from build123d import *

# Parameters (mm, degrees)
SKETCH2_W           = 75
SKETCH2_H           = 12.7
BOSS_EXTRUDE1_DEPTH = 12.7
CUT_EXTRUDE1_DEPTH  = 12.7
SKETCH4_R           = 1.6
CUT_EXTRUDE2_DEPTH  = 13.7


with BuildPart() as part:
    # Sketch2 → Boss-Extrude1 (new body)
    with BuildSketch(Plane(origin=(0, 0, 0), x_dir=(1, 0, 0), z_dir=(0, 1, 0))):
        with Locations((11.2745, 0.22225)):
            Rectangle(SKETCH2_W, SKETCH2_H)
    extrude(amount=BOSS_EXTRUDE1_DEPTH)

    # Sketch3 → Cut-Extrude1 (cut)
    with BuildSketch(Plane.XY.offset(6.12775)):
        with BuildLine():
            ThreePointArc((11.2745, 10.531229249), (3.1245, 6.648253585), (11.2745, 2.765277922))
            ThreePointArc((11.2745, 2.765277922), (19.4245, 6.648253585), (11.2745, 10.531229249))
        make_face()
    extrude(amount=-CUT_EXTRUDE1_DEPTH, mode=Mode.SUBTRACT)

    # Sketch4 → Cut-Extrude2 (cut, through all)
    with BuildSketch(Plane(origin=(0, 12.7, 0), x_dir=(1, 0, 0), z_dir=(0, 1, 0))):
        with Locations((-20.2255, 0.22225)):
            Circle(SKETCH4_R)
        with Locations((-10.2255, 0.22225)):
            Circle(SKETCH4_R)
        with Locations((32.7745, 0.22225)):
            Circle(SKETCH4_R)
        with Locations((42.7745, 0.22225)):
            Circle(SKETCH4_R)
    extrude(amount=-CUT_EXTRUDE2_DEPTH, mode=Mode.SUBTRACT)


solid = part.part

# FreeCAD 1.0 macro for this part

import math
import FreeCAD as App
import Part
import Sketcher
from FreeCAD import Vector
Q = App.Units.Quantity

doc = App.newDocument("Part")
params = doc.addObject("Spreadsheet::Sheet", "Params")
for row, (alias, value) in enumerate([
    ("sketch1_width", "75 mm"),
    ("sketch1_height", "12.7 mm"),
    ("pad1_length", "12.7 mm"),
    ("sketch2_radius", "5 mm"),
    ("pocket1_length", "12.7 mm"),
    ("sketch3_diameter", "3.2 mm"),
], start=1):
    params.set(f"A{row}", alias)
    params.set(f"B{row}", "=" + value)
    params.setAlias(f"B{row}", alias)

body = doc.addObject("PartDesign::Body", "Body")

# Sketch on XZ plane
sketch1 = body.newObject("Sketcher::SketchObject", "Sketch")
sketch1.AttachmentSupport = (doc.getObject("XZ_Plane"), [""])
sketch1.MapMode = "FlatFace"
sketch1.addGeometry([
    Part.LineSegment(Vector(-26, -7, 0), Vector(-26, 6, 0)),
    Part.LineSegment(Vector(-26, 6, 0), Vector(49, 6, 0)),
    Part.LineSegment(Vector(49, 6, 0), Vector(49, -7, 0)),
    Part.LineSegment(Vector(49, -7, 0), Vector(-26, -7, 0)),
], False)
sketch1.addConstraint([
    Sketcher.Constraint("Coincident", 0, 2, 1, 1),
    Sketcher.Constraint("Coincident", 1, 2, 2, 1),
    Sketcher.Constraint("Coincident", 2, 2, 3, 1),
    Sketcher.Constraint("Coincident", 3, 2, 0, 1),
    Sketcher.Constraint("Vertical", 0),
    Sketcher.Constraint("Horizontal", 1),
    Sketcher.Constraint("Vertical", 2),
    Sketcher.Constraint("Horizontal", 3),
    Sketcher.Constraint("DistanceX", 1, 1, 1, 2, Q("75 mm")),
    Sketcher.Constraint("DistanceY", 0, 1, 0, 2, Q("12.7 mm")),
    Sketcher.Constraint("DistanceX", 0, 2, -1, 1, Q("26.2255 mm")),
    Sketcher.Constraint("DistanceY", -1, 1, 0, 2, Q("6.12775 mm")),
])
sketch1.setExpression("Constraints[8]", "Params.sketch1_width")
sketch1.setExpression("Constraints[9]", "Params.sketch1_height")
pad1 = body.newObject("PartDesign::Pad", "Pad")
pad1.Profile = sketch1
pad1.setExpression("Length", "Params.pad1_length")
pad1.Reversed = True

# Sketch on XY plane
sketch2 = body.newObject("Sketcher::SketchObject", "Sketch001")
sketch2.AttachmentSupport = (doc.getObject("XY_Plane"), [""])
sketch2.MapMode = "FlatFace"
sketch2.AttachmentOffset = App.Placement(Vector(0, 0, 6.12775), App.Rotation())
sketch2.addGeometry([
    Part.ArcOfCircle(Part.Circle(Vector(8, 7, 0), Vector(0, 0, 1), 5), math.radians(51), math.radians(309)),
    Part.ArcOfCircle(Part.Circle(Vector(14, 7, 0), Vector(0, 0, 1), 5), math.radians(-129), math.radians(129)),
], False)
sketch2.addConstraint([
    Sketcher.Constraint("Coincident", 0, 1, 1, 2),
    Sketcher.Constraint("Coincident", 1, 1, 0, 2),
    Sketcher.Constraint("Equal", 0, 1),
    Sketcher.Constraint("Horizontal", 0, 3, 1, 3),
    Sketcher.Constraint("Radius", 0, Q("5 mm")),
    Sketcher.Constraint("DistanceX", 0, 3, 1, 3, Q("6.3 mm")),
    Sketcher.Constraint("DistanceX", -1, 1, 0, 3, Q("8.1245 mm")),
    Sketcher.Constraint("DistanceY", -1, 1, 0, 1, Q("10.531229 mm")),
])
sketch2.setExpression("Constraints[4]", "Params.sketch2_radius")
pocket1 = body.newObject("PartDesign::Pocket", "Pocket")
pocket1.Profile = sketch2
pocket1.setExpression("Length", "Params.pocket1_length")

# Sketch on XZ plane
sketch3 = body.newObject("Sketcher::SketchObject", "Sketch002")
sketch3.AttachmentSupport = (doc.getObject("XZ_Plane"), [""])
sketch3.MapMode = "FlatFace"
sketch3.AttachmentOffset = App.Placement(Vector(0, 0, -12.7), App.Rotation())
sketch3.addGeometry([
    Part.Circle(Vector(-20.2, -0.2, 0), Vector(0, 0, 1), 1.6),
    Part.Circle(Vector(-10.2, -0.2, 0), Vector(0, 0, 1), 1.6),
    Part.Circle(Vector(32.8, -0.2, 0), Vector(0, 0, 1), 1.6),
    Part.Circle(Vector(42.8, -0.2, 0), Vector(0, 0, 1), 1.6),
], False)
sketch3.addConstraint([
    Sketcher.Constraint("Equal", 0, 1),
    Sketcher.Constraint("Equal", 1, 2),
    Sketcher.Constraint("Equal", 2, 3),
    Sketcher.Constraint("Horizontal", 0, 3, 1, 3),
    Sketcher.Constraint("Horizontal", 1, 3, 2, 3),
    Sketcher.Constraint("Horizontal", 2, 3, 3, 3),
    Sketcher.Constraint("Diameter", 0, Q("3.2 mm")),
    Sketcher.Constraint("DistanceX", 0, 3, 1, 3, Q("10 mm")),
    Sketcher.Constraint("DistanceX", 1, 3, 2, 3, Q("43 mm")),
    Sketcher.Constraint("DistanceX", 2, 3, 3, 3, Q("10 mm")),
    Sketcher.Constraint("DistanceX", 0, 3, -1, 1, Q("20.2255 mm")),
    Sketcher.Constraint("DistanceY", 0, 3, -1, 1, Q("0.22225 mm")),
])
sketch3.setExpression("Constraints[6]", "Params.sketch3_diameter")
pocket2 = body.newObject("PartDesign::Pocket", "Pocket001")
pocket2.Profile = sketch3
pocket2.Type = "ThroughAll"
pocket2.Reversed = True

doc.recompute()
